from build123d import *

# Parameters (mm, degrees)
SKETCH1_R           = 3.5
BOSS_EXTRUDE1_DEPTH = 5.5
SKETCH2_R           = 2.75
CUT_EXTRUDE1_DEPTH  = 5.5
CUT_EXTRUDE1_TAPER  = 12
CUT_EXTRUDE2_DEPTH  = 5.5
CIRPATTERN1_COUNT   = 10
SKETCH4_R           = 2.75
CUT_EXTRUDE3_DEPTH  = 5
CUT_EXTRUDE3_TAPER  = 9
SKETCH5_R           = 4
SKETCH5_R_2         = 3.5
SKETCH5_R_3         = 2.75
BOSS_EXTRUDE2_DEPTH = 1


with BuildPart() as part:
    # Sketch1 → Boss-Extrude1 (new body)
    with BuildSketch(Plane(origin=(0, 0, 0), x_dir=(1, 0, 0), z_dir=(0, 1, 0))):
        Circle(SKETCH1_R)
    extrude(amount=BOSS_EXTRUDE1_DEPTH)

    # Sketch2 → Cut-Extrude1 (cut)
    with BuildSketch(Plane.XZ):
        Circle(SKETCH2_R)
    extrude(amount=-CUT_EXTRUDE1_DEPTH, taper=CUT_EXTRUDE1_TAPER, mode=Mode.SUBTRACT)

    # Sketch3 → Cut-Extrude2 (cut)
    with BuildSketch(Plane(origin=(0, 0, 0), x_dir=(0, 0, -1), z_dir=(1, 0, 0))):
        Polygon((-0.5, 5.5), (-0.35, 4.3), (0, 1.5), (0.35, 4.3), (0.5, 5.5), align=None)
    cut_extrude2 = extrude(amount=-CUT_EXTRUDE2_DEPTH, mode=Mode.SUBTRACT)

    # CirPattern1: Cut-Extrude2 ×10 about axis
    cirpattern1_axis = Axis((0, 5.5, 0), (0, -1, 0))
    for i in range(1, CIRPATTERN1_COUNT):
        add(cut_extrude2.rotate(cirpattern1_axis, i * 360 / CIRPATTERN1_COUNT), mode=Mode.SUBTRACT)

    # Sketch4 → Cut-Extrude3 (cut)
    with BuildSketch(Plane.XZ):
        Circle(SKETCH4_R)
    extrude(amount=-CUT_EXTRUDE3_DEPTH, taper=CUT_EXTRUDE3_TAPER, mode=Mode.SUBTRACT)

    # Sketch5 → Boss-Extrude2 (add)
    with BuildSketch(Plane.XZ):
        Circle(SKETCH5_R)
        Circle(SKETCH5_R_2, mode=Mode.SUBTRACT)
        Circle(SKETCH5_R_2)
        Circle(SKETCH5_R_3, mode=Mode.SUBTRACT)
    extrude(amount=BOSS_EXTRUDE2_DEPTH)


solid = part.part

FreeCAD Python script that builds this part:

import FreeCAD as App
import Part
import Sketcher
Q = App.Units.Quantity


def add_polygon(sketch, points):
    """Adds a closed chain of lines whose ends are joined by coincident constraints."""
    first, n = sketch.GeometryCount, len(points)
    for a, b in zip(points, points[1:] + points[:1]):
        sketch.addGeometry(Part.LineSegment(App.Vector(*a, 0), App.Vector(*b, 0)), False)
    for i in range(n):
        sketch.addConstraint(Sketcher.Constraint("Coincident", first + i, 2, first + (i + 1) % n, 1))

doc = App.newDocument("Part")
body = doc.addObject("PartDesign::Body", "Body")

# Sketch on XZ plane
sketch1 = body.newObject("Sketcher::SketchObject", "Sketch")
sketch1.AttachmentSupport = (doc.getObject("XZ_Plane"), [""])
sketch1.MapMode = "FlatFace"
sketch1.addGeometry(Part.Circle(App.Vector(0, 0, 0), App.Vector(0, 0, 1), 3.5), False)
sketch1.addConstraint([
    Sketcher.Constraint("Coincident", 0, 3, -1, 1),
    Sketcher.Constraint("Diameter", 0, Q("7 mm")),
])
pad1 = body.newObject("PartDesign::Pad", "Pad")
pad1.Profile = sketch1
pad1.Length = 5.5
pad1.Reversed = True

# Sketch on XZ plane
sketch2 = body.newObject("Sketcher::SketchObject", "Sketch001")
sketch2.AttachmentSupport = (doc.getObject("XZ_Plane"), [""])
sketch2.MapMode = "FlatFace"
sketch2.addGeometry(Part.Circle(App.Vector(0, 0, 0), App.Vector(0, 0, 1), 2.75), False)
sketch2.addConstraint([
    Sketcher.Constraint("Coincident", 0, 3, -1, 1),
    Sketcher.Constraint("Diameter", 0, Q("5.5 mm")),
])
pocket1 = body.newObject("PartDesign::Pocket", "Pocket")
pocket1.Profile = sketch2
pocket1.Length = 5.5
pocket1.TaperAngle = -12

# Sketch on YZ plane
sketch3 = body.newObject("Sketcher::SketchObject", "Sketch002")
sketch3.AttachmentSupport = (doc.getObject("YZ_Plane"), [""])
sketch3.MapMode = "FlatFace"
add_polygon(sketch3, [(5.5, 0.5), (1.5, 0), (5.5, -0.5)])  # lines 0-2
sketch3.addConstraint([
    Sketcher.Constraint("Vertical", 2),
    Sketcher.Constraint("PointOnObject", 0, 2, -1),
    Sketcher.Constraint("Equal", 0, 1),
    Sketcher.Constraint("DistanceY", 2, 1, 2, 2, Q("1 mm")),
    Sketcher.Constraint("DistanceX", 0, 2, 1, 2, Q("4 mm")),
    Sketcher.Constraint("DistanceX", -1, 1, 0, 2, Q("1.5 mm")),
])
pocket2 = body.newObject("PartDesign::Pocket", "Pocket001")
pocket2.Profile = sketch3
pocket2.Length = 5.5
doc.recompute()

polarpattern = body.newObject("PartDesign::PolarPattern", "PolarPattern")
polarpattern.Originals = [pocket2]
polarpattern.Axis = (doc.getObject("Y_Axis"), [""])
polarpattern.Angle = 360
polarpattern.Occurrences = 10
body.Tip = polarpattern

# Sketch on XZ plane
sketch4 = body.newObject("Sketcher::SketchObject", "Sketch003")
sketch4.AttachmentSupport = (doc.getObject("XZ_Plane"), [""])
sketch4.MapMode = "FlatFace"
sketch4.addGeometry(Part.Circle(App.Vector(0, 0, 0), App.Vector(0, 0, 1), 2.75), False)
sketch4.addConstraint([
    Sketcher.Constraint("Coincident", 0, 3, -1, 1),
    Sketcher.Constraint("Diameter", 0, Q("5.5 mm")),
])
pocket3 = body.newObject("PartDesign::Pocket", "Pocket002")
pocket3.Profile = sketch4
pocket3.Length = 5
pocket3.TaperAngle = -9

# Sketch on XZ plane
sketch5 = body.newObject("Sketcher::SketchObject", "Sketch004")
sketch5.AttachmentSupport = (doc.getObject("XZ_Plane"), [""])
sketch5.MapMode = "FlatFace"
sketch5.addGeometry([
    Part.Circle(App.Vector(0, 0, 0), App.Vector(0, 0, 1), 4),
    Part.Circle(App.Vector(0, 0, 0), App.Vector(0, 0, 1), 2.75),
], False)
sketch5.addConstraint([
    Sketcher.Constraint("Coincident", 0, 3, -1, 1),
    Sketcher.Constraint("Coincident", 1, 3, -1, 1),
    Sketcher.Constraint("Diameter", 0, Q("8 mm")),
    Sketcher.Constraint("Diameter", 1, Q("5.5 mm")),
])
pad2 = body.newObject("PartDesign::Pad", "Pad001")
pad2.Profile = sketch5
pad2.Length = 1

doc.recompute()
